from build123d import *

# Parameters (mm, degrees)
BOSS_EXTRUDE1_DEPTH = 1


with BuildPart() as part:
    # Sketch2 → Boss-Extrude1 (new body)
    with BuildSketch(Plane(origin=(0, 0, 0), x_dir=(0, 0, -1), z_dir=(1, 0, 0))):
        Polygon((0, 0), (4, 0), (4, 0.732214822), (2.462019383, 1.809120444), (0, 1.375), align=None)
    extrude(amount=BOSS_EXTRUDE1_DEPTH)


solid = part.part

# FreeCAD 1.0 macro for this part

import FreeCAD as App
import Part
import Sketcher

V = App.Vector
Q = App.Units.Quantity

doc = App.newDocument("Part")
body = doc.addObject("PartDesign::Body", "Body")

# Sketch on YZ plane
sketch1 = body.newObject("Sketcher::SketchObject", "Sketch")
sketch1.AttachmentSupport = (doc.getObject("YZ_Plane"), [""])
sketch1.MapMode = "FlatFace"
sketch1.addGeometry([
    Part.LineSegment(V(0, 0, 0), V(0, -4, 0)),  # 0
    Part.LineSegment(V(0, -4, 0), V(0.7, -4, 0)),  # 1
    Part.LineSegment(V(0.7, -4, 0), V(1.8, -2.5, 0)),  # 2
    Part.LineSegment(V(1.8, -2.5, 0), V(1.4, 0, 0)),  # 3
    Part.LineSegment(V(1.4, 0, 0), V(0, 0, 0)),  # 4
], False)
sketch1.addConstraint([
    Sketcher.Constraint("Coincident", 0, 2, 1, 1),
    Sketcher.Constraint("Coincident", 1, 2, 2, 1),
    Sketcher.Constraint("Coincident", 2, 2, 3, 1),
    Sketcher.Constraint("Coincident", 3, 2, 4, 1),
    Sketcher.Constraint("Coincident", 4, 2, 0, 1),
    Sketcher.Constraint("Vertical", 0),
    Sketcher.Constraint("Horizontal", 1),
    Sketcher.Constraint("Horizontal", 4),
    Sketcher.Constraint("Coincident", 4, 2, -1, 1),
    Sketcher.Constraint("DistanceY", 0, 2, 0, 1, Q("4 mm")),
    Sketcher.Constraint("Angle", 2, Q("55 deg")),
    Sketcher.Constraint("Angle", 3, Q("100 deg")),
    Sketcher.Constraint("Distance", 3, Q("2.5 mm")),
    Sketcher.Constraint("DistanceX", 4, 2, 4, 1, Q("1.375 mm")),
])
pad1 = body.newObject("PartDesign::Pad", "Pad")
pad1.Profile = sketch1
pad1.Length = 1

doc.recompute()
